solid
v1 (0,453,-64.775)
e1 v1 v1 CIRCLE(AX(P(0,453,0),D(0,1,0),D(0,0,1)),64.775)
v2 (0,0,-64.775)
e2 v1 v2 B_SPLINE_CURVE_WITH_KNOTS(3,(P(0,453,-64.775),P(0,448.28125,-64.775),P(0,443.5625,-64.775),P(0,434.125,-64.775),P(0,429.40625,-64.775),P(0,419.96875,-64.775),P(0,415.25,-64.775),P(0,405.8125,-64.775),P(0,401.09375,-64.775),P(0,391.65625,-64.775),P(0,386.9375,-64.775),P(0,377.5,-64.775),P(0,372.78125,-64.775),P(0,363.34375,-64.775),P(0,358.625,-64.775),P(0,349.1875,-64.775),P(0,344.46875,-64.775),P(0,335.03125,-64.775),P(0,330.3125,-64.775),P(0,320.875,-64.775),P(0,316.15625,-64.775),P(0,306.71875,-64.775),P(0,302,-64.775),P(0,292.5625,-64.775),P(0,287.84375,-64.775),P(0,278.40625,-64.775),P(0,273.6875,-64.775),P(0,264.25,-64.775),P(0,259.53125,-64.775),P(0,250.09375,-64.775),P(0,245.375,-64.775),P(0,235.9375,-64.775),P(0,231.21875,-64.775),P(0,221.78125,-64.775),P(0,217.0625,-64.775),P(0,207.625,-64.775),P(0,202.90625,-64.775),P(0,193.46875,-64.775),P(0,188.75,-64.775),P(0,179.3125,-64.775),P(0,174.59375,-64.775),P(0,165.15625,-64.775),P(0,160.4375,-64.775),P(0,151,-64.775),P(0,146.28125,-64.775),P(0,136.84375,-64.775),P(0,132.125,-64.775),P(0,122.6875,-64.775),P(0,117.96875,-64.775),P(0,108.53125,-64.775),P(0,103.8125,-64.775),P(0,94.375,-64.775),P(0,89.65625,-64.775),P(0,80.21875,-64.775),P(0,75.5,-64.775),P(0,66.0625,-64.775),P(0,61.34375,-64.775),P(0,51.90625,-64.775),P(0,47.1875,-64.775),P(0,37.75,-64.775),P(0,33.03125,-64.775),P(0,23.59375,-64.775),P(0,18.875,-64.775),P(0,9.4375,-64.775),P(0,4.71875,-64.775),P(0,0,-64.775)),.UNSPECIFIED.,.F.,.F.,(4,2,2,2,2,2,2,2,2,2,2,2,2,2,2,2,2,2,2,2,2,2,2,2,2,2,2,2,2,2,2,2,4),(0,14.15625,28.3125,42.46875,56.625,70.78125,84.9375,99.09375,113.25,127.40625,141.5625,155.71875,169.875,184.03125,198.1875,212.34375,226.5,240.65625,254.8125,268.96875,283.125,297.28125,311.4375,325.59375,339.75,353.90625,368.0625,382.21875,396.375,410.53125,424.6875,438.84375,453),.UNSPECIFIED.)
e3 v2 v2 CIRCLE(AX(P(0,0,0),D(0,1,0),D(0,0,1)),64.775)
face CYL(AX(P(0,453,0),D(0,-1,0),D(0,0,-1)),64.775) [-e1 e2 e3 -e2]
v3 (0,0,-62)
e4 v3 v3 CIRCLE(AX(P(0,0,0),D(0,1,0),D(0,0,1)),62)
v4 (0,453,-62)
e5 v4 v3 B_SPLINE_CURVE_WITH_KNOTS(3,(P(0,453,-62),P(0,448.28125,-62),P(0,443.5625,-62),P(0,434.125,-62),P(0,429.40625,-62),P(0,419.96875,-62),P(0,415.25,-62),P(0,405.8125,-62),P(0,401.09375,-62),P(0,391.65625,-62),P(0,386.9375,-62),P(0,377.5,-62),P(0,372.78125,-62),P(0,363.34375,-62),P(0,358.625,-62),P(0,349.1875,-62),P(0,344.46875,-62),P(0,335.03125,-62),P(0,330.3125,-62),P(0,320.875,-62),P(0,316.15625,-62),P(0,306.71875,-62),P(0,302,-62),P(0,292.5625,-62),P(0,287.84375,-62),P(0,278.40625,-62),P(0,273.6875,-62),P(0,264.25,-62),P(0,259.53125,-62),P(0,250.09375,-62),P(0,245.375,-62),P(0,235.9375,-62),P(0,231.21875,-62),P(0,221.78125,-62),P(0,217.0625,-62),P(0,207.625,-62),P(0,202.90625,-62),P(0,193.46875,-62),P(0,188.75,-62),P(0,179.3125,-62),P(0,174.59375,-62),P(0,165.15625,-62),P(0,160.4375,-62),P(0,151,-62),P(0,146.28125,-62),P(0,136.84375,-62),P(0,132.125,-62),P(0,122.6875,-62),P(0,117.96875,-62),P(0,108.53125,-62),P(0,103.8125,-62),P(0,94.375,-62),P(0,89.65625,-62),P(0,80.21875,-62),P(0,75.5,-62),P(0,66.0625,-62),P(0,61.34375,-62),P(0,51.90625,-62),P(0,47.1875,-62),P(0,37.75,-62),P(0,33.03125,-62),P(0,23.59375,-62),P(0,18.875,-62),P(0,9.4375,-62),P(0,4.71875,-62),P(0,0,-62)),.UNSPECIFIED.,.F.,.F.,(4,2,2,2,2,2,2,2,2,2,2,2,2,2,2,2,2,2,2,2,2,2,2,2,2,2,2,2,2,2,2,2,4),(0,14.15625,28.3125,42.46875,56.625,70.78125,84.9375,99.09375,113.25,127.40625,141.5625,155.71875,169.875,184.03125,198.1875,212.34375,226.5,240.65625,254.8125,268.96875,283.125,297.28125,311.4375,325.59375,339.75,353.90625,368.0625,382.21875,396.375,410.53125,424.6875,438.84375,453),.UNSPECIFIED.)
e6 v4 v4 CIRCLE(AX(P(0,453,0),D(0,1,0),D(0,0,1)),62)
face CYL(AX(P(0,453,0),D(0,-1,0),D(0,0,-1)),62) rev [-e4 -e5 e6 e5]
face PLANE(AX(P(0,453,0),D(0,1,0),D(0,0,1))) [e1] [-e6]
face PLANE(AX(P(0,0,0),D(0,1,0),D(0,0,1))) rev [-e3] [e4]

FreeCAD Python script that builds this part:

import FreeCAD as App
import Part
import Sketcher

V = App.Vector

doc = App.newDocument("Part")
body = doc.addObject("PartDesign::Body", "Body")

# Sketch on XZ plane
sketch1 = body.newObject("Sketcher::SketchObject", "Sketch")
sketch1.AttachmentSupport = (doc.getObject("XZ_Plane"), [""])
sketch1.MapMode = "FlatFace"
sketch1.addGeometry([
    Part.Circle(V(0, 0, 0), V(0, 0, 1), 65),
    Part.Circle(V(0, 0, 0), V(0, 0, 1), 62),
], False)
sketch1.addConstraint([
    Sketcher.Constraint("Coincident", 0, 3, -1, 1),
    Sketcher.Constraint("Coincident", 1, 3, -1, 1),
    Sketcher.Constraint("Diameter", 1, 124.0),
    Sketcher.Constraint("Diameter", 0, 129.55),
])
pad1 = body.newObject("PartDesign::Pad", "Pad")
pad1.Profile = sketch1
pad1.Length = 453
pad1.Reversed = True

doc.recompute()
